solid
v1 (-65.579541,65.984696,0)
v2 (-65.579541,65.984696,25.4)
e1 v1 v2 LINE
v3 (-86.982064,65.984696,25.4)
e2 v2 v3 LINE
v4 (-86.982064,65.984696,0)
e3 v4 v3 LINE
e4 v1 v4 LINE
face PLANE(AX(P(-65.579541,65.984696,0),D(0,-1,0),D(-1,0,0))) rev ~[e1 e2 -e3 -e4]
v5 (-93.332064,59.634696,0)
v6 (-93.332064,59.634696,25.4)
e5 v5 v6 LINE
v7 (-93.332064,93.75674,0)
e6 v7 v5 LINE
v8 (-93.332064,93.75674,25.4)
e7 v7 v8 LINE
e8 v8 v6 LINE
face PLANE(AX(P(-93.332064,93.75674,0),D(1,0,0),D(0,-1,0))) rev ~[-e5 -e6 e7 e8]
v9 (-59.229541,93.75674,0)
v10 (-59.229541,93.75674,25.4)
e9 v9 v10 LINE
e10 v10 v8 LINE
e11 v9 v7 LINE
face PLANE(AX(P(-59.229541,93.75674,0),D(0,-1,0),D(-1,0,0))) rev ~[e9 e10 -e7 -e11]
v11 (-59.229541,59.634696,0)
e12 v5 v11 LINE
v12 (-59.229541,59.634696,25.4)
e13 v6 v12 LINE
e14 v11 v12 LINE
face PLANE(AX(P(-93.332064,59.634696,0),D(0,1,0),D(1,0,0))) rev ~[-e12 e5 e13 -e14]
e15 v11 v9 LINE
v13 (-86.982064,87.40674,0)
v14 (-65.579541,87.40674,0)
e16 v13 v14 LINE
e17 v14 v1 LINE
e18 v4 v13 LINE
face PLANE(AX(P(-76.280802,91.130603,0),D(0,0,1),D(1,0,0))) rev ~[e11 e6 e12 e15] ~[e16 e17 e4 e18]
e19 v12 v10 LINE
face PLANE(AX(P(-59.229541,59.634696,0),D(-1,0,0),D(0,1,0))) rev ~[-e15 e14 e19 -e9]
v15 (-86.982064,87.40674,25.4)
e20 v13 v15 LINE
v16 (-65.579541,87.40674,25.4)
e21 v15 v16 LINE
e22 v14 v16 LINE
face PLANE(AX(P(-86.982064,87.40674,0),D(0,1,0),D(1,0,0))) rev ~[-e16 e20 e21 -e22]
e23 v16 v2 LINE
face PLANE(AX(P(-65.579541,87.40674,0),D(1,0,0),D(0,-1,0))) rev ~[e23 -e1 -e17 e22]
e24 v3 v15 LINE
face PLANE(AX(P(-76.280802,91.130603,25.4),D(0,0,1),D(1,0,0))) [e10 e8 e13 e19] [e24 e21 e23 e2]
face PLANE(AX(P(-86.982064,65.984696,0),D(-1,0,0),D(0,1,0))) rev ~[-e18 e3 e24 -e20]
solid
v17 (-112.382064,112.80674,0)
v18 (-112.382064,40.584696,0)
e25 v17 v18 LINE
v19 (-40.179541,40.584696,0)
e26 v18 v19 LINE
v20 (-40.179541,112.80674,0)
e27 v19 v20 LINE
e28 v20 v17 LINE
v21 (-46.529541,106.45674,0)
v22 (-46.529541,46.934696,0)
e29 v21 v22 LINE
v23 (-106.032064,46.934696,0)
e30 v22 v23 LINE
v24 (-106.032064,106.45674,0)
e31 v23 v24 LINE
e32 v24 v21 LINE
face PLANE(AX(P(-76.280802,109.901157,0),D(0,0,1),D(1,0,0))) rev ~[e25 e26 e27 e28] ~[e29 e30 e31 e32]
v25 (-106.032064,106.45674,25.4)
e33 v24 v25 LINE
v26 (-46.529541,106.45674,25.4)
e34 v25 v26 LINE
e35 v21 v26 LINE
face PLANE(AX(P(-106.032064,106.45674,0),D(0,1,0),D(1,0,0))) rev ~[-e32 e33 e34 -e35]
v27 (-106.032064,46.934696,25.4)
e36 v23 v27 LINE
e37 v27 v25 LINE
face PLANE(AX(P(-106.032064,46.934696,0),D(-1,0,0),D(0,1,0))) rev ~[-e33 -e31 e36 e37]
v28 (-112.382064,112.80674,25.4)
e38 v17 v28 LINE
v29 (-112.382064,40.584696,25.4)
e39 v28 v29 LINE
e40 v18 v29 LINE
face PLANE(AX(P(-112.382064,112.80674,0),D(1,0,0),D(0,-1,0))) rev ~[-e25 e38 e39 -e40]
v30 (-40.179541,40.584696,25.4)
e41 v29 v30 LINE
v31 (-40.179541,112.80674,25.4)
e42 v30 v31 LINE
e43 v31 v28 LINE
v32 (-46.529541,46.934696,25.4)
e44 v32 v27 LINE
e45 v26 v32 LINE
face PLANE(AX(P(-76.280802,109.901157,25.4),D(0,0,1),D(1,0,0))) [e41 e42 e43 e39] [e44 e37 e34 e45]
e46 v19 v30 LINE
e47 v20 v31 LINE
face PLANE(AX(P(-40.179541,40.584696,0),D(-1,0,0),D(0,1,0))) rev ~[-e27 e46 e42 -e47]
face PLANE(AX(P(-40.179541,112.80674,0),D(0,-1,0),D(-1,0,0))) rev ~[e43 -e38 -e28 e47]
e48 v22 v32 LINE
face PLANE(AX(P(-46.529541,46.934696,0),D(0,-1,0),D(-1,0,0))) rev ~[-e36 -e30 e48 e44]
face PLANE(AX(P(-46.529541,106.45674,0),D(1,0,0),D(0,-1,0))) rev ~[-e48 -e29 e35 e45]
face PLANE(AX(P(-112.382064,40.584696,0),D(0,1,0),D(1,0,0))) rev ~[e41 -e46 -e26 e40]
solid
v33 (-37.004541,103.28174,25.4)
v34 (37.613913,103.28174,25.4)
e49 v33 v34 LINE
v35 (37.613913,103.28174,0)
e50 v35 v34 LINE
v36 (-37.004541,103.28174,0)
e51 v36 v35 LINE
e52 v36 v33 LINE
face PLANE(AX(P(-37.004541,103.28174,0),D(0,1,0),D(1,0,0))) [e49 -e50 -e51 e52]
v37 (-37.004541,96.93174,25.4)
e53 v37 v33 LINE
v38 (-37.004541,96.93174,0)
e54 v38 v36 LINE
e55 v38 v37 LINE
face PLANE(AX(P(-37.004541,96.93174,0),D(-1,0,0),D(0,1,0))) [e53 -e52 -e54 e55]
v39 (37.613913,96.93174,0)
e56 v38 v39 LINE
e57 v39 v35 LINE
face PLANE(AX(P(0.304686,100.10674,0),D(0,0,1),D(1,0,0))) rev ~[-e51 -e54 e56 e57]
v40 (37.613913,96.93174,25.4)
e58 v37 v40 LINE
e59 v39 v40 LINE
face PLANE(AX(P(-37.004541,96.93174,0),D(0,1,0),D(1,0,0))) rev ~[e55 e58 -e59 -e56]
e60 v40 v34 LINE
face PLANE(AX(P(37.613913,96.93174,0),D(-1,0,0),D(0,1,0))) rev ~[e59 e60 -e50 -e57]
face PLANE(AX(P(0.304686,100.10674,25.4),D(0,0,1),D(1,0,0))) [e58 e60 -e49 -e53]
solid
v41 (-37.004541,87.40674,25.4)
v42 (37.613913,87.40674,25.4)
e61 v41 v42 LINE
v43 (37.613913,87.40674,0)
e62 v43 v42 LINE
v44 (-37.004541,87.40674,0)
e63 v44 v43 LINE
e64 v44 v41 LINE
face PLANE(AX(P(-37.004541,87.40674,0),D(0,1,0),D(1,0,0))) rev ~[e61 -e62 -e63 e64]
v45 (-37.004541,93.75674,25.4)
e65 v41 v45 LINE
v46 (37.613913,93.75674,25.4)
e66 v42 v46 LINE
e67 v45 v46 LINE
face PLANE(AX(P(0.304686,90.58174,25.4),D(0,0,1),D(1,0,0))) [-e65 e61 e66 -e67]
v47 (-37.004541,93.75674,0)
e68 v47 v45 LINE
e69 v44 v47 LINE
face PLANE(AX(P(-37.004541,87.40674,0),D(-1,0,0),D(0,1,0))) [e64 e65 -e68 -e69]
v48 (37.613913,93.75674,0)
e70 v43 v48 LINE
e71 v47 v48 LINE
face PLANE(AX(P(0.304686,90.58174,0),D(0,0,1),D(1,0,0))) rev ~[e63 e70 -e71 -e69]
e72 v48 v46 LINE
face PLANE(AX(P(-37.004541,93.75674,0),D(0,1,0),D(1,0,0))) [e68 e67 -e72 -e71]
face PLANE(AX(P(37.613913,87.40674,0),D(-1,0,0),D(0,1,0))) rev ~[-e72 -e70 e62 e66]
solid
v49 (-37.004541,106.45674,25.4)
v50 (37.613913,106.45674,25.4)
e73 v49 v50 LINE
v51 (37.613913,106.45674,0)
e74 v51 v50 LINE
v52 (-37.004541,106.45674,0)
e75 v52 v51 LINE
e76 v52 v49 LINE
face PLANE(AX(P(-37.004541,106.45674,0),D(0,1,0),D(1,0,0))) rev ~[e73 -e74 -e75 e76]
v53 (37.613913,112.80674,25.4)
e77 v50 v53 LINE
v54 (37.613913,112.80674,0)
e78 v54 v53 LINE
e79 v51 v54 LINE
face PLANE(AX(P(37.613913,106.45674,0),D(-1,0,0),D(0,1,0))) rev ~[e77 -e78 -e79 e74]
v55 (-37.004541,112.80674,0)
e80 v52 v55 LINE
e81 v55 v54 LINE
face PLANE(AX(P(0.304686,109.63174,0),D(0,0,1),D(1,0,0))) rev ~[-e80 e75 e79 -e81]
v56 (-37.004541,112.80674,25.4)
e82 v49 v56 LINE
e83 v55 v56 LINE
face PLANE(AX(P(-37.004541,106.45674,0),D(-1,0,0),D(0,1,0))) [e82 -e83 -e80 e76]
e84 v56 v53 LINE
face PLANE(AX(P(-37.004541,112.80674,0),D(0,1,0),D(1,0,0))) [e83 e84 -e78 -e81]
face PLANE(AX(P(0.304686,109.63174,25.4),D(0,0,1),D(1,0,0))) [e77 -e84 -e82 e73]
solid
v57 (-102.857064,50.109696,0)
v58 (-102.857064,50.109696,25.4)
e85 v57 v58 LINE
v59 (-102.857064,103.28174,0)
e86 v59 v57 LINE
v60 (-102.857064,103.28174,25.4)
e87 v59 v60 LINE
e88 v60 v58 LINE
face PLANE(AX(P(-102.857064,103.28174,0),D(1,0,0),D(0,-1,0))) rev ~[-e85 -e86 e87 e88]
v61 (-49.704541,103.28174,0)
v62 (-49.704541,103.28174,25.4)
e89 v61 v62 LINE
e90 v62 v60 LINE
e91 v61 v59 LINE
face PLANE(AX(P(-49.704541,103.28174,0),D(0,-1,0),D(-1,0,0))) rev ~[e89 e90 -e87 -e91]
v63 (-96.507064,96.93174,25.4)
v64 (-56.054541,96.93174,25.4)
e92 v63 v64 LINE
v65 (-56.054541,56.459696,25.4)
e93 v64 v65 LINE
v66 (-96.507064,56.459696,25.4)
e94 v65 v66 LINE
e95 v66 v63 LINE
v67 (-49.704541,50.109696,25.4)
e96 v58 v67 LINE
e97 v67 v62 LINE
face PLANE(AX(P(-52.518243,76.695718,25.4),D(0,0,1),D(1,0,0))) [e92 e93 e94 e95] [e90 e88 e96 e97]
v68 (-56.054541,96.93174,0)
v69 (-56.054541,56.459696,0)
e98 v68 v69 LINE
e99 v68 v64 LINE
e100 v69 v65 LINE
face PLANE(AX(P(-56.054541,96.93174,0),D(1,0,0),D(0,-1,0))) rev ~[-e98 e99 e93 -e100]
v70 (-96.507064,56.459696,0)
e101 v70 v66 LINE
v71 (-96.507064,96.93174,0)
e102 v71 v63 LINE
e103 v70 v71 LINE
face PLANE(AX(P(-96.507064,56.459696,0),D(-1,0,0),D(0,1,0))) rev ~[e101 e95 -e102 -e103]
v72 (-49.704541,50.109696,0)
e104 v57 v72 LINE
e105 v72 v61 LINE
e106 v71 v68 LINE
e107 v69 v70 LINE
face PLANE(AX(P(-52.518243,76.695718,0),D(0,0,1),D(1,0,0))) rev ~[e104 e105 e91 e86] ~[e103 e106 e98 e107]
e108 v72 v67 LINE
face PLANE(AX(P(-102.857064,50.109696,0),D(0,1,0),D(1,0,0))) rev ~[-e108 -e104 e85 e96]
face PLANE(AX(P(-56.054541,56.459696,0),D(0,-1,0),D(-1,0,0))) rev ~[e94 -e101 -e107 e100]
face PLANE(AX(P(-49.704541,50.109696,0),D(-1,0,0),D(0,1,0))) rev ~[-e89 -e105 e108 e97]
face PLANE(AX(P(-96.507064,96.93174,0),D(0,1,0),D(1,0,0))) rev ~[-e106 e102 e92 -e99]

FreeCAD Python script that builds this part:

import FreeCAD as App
import Part
import Sketcher

V = App.Vector
Q = App.Units.Quantity


def add_polygon(sketch, points):
    """Adds a closed chain of lines whose ends are joined by coincident constraints."""
    first, n = sketch.GeometryCount, len(points)
    for a, b in zip(points, points[1:] + points[:1]):
        sketch.addGeometry(Part.LineSegment(App.Vector(*a, 0), App.Vector(*b, 0)), False)
    for i in range(n):
        sketch.addConstraint(Sketcher.Constraint("Coincident", first + i, 2, first + (i + 1) % n, 1))

doc = App.newDocument("Part")
body = doc.addObject("PartDesign::Body", "Body")
body.AllowCompound = True

sketch1 = body.newObject("Sketcher::SketchObject", "Sketch")
sketch1.AttachmentSupport = (doc.getObject("XY_Plane"), [""])
sketch1.MapMode = "FlatFace"
add_polygon(sketch1, [(-59, 60), (-59, 94), (-93, 94), (-93, 60)])
add_polygon(sketch1, [(-87, 87), (-66, 87), (-66, 66), (-87, 66)])
add_polygon(sketch1, [(-103, 103), (-103, 50), (-50, 50), (-50, 103)])
add_polygon(sketch1, [(-56, 97), (-56, 56), (-97, 56), (-97, 97)])
add_polygon(sketch1, [(-40, 41), (-40, 113), (-112, 113), (-112, 41)])
add_polygon(sketch1, [(-106, 106), (-47, 106), (-47, 47), (-106, 47)])
add_polygon(sketch1, [(-37, 103), (-37, 97), (38, 97), (38, 103)])
add_polygon(sketch1, [(-37, 113), (-37, 106), (38, 106), (38, 113)])
add_polygon(sketch1, [(-37, 94), (-37, 87), (38, 87), (38, 94)])
sketch1.addConstraint(Sketcher.Constraint("Vertical", 0))
sketch1.addConstraint(Sketcher.Constraint("Horizontal", 1))
sketch1.addConstraint(Sketcher.Constraint("Vertical", 2))
sketch1.addConstraint(Sketcher.Constraint("Horizontal", 3))
sketch1.addConstraint(Sketcher.Constraint("Horizontal", 4))
sketch1.addConstraint(Sketcher.Constraint("Vertical", 5))
sketch1.addConstraint(Sketcher.Constraint("Horizontal", 6))
sketch1.addConstraint(Sketcher.Constraint("Vertical", 7))
sketch1.addConstraint(Sketcher.Constraint("Vertical", 8))
sketch1.addConstraint(Sketcher.Constraint("Horizontal", 9))
sketch1.addConstraint(Sketcher.Constraint("Vertical", 10))
sketch1.addConstraint(Sketcher.Constraint("Horizontal", 11))
sketch1.addConstraint(Sketcher.Constraint("Vertical", 12))
sketch1.addConstraint(Sketcher.Constraint("Horizontal", 13))
sketch1.addConstraint(Sketcher.Constraint("Vertical", 14))
sketch1.addConstraint(Sketcher.Constraint("Horizontal", 15))
sketch1.addConstraint(Sketcher.Constraint("Vertical", 16))
sketch1.addConstraint(Sketcher.Constraint("Horizontal", 17))
sketch1.addConstraint(Sketcher.Constraint("Vertical", 18))
sketch1.addConstraint(Sketcher.Constraint("Horizontal", 19))
sketch1.addConstraint(Sketcher.Constraint("Horizontal", 20))
sketch1.addConstraint(Sketcher.Constraint("Vertical", 21))
sketch1.addConstraint(Sketcher.Constraint("Horizontal", 22))
sketch1.addConstraint(Sketcher.Constraint("Vertical", 23))
sketch1.addConstraint(Sketcher.Constraint("Vertical", 24))
sketch1.addConstraint(Sketcher.Constraint("Horizontal", 25))
sketch1.addConstraint(Sketcher.Constraint("Vertical", 26))
sketch1.addConstraint(Sketcher.Constraint("Horizontal", 27))
sketch1.addConstraint(Sketcher.Constraint("Vertical", 28))
sketch1.addConstraint(Sketcher.Constraint("Horizontal", 29))
sketch1.addConstraint(Sketcher.Constraint("Vertical", 30))
sketch1.addConstraint(Sketcher.Constraint("Horizontal", 31))
sketch1.addConstraint(Sketcher.Constraint("Vertical", 32))
sketch1.addConstraint(Sketcher.Constraint("Horizontal", 33))
sketch1.addConstraint(Sketcher.Constraint("Vertical", 34))
sketch1.addConstraint(Sketcher.Constraint("Horizontal", 35))
sketch1.addConstraint(Sketcher.Constraint("Horizontal", 15, 2, 24, 2))
sketch1.addConstraint(Sketcher.Constraint("Horizontal", 11, 2, 26, 2))
sketch1.addConstraint(Sketcher.Constraint("Horizontal", 23, 2, 28, 2))
sketch1.addConstraint(Sketcher.Constraint("Horizontal", 17, 2, 30, 2))
sketch1.addConstraint(Sketcher.Constraint("Horizontal", 7, 2, 32, 2))
sketch1.addConstraint(Sketcher.Constraint("Horizontal", 1, 2, 34, 2))
sketch1.addConstraint(Sketcher.Constraint("Vertical", 27, 2, 28, 2))
sketch1.addConstraint(Sketcher.Constraint("Vertical", 26, 2, 29, 2))
sketch1.addConstraint(Sketcher.Constraint("Vertical", 31, 2, 32, 2))
sketch1.addConstraint(Sketcher.Constraint("Vertical", 30, 2, 33, 2))
sketch1.addConstraint(Sketcher.Constraint("Equal", 26, 28))
sketch1.addConstraint(Sketcher.Constraint("Equal", 30, 32))
sketch1.addConstraint(Sketcher.Constraint("DistanceX", 4, 2, 16, 2, Q("1 in")))
sketch1.addConstraint(Sketcher.Constraint("DistanceY", 4, 2, 16, 2, Q("1 in")))
sketch1.addConstraint(Sketcher.Constraint("DistanceX", 17, 2, 7, 2, Q("1 in")))
sketch1.addConstraint(Sketcher.Constraint("DistanceY", 18, 2, 6, 2, Q("1 in")))
sketch1.addConstraint(Sketcher.Constraint("DistanceY", 24, 2, 24, 1, Q("0.25 in")))
sketch1.addConstraint(Sketcher.Constraint("DistanceX", 0, 2, 20, 2, Q("0.5 in")))
sketch1.addConstraint(Sketcher.Constraint("DistanceY", 21, 2, 3, 2, Q("0.5 in")))
sketch1.addConstraint(Sketcher.Constraint("DistanceX", 22, 2, 2, 2, Q("0.5 in")))
sketch1.addConstraint(Sketcher.Constraint("DistanceX", 10, 2, 24, 2, Q("0.5 in")))
sketch1.addConstraint(Sketcher.Constraint("DistanceX", 4, 2, 0, 2, Q("0.25 in")))
sketch1.addConstraint(Sketcher.Constraint("DistanceY", 3, 2, 5, 2, Q("0.25 in")))
sketch1.addConstraint(Sketcher.Constraint("DistanceX", 2, 2, 6, 2, Q("0.25 in")))
sketch1.addConstraint(Sketcher.Constraint("DistanceX", 12, 2, 9, 2, Q("0.25 in")))
sketch1.addConstraint(Sketcher.Constraint("DistanceY", 9, 2, 12, 2, Q("0.25 in")))
sketch1.addConstraint(Sketcher.Constraint("DistanceX", 8, 2, 13, 2, Q("0.25 in")))
sketch1.addConstraint(Sketcher.Constraint("DistanceX", 8, 2, 2, 2, Q("0.375 in")))
sketch1.addConstraint(Sketcher.Constraint("DistanceY", 8, 2, 2, 2, Q("0.375 in")))
sketch1.addConstraint(Sketcher.Constraint("DistanceX", 3, 2, 9, 2, Q("0.375 in")))
sketch1.addConstraint(Sketcher.Constraint("DistanceY", 0, 2, 10, 2, Q("0.375 in")))
sketch1.addConstraint(Sketcher.Constraint("DistanceX", 1, 2, 1, 1, 34.102523))
sketch1.addConstraint(Sketcher.Constraint("DistanceX", 25, 1, 25, 2, 74.618454))
sketch1.addConstraint(Sketcher.Constraint("DistanceY", 0, 1, 0, 2, 34.122044))
sketch1.addConstraint(Sketcher.Constraint("DistanceX", 0, 2, -1, 1, 59.229541))
sketch1.addConstraint(Sketcher.Constraint("DistanceY", -1, 1, 0, 2, 93.75674))
pad1 = body.newObject("PartDesign::Pad", "Pad")
pad1.Profile = sketch1
pad1.Length = Q("1 in")

doc.recompute()
